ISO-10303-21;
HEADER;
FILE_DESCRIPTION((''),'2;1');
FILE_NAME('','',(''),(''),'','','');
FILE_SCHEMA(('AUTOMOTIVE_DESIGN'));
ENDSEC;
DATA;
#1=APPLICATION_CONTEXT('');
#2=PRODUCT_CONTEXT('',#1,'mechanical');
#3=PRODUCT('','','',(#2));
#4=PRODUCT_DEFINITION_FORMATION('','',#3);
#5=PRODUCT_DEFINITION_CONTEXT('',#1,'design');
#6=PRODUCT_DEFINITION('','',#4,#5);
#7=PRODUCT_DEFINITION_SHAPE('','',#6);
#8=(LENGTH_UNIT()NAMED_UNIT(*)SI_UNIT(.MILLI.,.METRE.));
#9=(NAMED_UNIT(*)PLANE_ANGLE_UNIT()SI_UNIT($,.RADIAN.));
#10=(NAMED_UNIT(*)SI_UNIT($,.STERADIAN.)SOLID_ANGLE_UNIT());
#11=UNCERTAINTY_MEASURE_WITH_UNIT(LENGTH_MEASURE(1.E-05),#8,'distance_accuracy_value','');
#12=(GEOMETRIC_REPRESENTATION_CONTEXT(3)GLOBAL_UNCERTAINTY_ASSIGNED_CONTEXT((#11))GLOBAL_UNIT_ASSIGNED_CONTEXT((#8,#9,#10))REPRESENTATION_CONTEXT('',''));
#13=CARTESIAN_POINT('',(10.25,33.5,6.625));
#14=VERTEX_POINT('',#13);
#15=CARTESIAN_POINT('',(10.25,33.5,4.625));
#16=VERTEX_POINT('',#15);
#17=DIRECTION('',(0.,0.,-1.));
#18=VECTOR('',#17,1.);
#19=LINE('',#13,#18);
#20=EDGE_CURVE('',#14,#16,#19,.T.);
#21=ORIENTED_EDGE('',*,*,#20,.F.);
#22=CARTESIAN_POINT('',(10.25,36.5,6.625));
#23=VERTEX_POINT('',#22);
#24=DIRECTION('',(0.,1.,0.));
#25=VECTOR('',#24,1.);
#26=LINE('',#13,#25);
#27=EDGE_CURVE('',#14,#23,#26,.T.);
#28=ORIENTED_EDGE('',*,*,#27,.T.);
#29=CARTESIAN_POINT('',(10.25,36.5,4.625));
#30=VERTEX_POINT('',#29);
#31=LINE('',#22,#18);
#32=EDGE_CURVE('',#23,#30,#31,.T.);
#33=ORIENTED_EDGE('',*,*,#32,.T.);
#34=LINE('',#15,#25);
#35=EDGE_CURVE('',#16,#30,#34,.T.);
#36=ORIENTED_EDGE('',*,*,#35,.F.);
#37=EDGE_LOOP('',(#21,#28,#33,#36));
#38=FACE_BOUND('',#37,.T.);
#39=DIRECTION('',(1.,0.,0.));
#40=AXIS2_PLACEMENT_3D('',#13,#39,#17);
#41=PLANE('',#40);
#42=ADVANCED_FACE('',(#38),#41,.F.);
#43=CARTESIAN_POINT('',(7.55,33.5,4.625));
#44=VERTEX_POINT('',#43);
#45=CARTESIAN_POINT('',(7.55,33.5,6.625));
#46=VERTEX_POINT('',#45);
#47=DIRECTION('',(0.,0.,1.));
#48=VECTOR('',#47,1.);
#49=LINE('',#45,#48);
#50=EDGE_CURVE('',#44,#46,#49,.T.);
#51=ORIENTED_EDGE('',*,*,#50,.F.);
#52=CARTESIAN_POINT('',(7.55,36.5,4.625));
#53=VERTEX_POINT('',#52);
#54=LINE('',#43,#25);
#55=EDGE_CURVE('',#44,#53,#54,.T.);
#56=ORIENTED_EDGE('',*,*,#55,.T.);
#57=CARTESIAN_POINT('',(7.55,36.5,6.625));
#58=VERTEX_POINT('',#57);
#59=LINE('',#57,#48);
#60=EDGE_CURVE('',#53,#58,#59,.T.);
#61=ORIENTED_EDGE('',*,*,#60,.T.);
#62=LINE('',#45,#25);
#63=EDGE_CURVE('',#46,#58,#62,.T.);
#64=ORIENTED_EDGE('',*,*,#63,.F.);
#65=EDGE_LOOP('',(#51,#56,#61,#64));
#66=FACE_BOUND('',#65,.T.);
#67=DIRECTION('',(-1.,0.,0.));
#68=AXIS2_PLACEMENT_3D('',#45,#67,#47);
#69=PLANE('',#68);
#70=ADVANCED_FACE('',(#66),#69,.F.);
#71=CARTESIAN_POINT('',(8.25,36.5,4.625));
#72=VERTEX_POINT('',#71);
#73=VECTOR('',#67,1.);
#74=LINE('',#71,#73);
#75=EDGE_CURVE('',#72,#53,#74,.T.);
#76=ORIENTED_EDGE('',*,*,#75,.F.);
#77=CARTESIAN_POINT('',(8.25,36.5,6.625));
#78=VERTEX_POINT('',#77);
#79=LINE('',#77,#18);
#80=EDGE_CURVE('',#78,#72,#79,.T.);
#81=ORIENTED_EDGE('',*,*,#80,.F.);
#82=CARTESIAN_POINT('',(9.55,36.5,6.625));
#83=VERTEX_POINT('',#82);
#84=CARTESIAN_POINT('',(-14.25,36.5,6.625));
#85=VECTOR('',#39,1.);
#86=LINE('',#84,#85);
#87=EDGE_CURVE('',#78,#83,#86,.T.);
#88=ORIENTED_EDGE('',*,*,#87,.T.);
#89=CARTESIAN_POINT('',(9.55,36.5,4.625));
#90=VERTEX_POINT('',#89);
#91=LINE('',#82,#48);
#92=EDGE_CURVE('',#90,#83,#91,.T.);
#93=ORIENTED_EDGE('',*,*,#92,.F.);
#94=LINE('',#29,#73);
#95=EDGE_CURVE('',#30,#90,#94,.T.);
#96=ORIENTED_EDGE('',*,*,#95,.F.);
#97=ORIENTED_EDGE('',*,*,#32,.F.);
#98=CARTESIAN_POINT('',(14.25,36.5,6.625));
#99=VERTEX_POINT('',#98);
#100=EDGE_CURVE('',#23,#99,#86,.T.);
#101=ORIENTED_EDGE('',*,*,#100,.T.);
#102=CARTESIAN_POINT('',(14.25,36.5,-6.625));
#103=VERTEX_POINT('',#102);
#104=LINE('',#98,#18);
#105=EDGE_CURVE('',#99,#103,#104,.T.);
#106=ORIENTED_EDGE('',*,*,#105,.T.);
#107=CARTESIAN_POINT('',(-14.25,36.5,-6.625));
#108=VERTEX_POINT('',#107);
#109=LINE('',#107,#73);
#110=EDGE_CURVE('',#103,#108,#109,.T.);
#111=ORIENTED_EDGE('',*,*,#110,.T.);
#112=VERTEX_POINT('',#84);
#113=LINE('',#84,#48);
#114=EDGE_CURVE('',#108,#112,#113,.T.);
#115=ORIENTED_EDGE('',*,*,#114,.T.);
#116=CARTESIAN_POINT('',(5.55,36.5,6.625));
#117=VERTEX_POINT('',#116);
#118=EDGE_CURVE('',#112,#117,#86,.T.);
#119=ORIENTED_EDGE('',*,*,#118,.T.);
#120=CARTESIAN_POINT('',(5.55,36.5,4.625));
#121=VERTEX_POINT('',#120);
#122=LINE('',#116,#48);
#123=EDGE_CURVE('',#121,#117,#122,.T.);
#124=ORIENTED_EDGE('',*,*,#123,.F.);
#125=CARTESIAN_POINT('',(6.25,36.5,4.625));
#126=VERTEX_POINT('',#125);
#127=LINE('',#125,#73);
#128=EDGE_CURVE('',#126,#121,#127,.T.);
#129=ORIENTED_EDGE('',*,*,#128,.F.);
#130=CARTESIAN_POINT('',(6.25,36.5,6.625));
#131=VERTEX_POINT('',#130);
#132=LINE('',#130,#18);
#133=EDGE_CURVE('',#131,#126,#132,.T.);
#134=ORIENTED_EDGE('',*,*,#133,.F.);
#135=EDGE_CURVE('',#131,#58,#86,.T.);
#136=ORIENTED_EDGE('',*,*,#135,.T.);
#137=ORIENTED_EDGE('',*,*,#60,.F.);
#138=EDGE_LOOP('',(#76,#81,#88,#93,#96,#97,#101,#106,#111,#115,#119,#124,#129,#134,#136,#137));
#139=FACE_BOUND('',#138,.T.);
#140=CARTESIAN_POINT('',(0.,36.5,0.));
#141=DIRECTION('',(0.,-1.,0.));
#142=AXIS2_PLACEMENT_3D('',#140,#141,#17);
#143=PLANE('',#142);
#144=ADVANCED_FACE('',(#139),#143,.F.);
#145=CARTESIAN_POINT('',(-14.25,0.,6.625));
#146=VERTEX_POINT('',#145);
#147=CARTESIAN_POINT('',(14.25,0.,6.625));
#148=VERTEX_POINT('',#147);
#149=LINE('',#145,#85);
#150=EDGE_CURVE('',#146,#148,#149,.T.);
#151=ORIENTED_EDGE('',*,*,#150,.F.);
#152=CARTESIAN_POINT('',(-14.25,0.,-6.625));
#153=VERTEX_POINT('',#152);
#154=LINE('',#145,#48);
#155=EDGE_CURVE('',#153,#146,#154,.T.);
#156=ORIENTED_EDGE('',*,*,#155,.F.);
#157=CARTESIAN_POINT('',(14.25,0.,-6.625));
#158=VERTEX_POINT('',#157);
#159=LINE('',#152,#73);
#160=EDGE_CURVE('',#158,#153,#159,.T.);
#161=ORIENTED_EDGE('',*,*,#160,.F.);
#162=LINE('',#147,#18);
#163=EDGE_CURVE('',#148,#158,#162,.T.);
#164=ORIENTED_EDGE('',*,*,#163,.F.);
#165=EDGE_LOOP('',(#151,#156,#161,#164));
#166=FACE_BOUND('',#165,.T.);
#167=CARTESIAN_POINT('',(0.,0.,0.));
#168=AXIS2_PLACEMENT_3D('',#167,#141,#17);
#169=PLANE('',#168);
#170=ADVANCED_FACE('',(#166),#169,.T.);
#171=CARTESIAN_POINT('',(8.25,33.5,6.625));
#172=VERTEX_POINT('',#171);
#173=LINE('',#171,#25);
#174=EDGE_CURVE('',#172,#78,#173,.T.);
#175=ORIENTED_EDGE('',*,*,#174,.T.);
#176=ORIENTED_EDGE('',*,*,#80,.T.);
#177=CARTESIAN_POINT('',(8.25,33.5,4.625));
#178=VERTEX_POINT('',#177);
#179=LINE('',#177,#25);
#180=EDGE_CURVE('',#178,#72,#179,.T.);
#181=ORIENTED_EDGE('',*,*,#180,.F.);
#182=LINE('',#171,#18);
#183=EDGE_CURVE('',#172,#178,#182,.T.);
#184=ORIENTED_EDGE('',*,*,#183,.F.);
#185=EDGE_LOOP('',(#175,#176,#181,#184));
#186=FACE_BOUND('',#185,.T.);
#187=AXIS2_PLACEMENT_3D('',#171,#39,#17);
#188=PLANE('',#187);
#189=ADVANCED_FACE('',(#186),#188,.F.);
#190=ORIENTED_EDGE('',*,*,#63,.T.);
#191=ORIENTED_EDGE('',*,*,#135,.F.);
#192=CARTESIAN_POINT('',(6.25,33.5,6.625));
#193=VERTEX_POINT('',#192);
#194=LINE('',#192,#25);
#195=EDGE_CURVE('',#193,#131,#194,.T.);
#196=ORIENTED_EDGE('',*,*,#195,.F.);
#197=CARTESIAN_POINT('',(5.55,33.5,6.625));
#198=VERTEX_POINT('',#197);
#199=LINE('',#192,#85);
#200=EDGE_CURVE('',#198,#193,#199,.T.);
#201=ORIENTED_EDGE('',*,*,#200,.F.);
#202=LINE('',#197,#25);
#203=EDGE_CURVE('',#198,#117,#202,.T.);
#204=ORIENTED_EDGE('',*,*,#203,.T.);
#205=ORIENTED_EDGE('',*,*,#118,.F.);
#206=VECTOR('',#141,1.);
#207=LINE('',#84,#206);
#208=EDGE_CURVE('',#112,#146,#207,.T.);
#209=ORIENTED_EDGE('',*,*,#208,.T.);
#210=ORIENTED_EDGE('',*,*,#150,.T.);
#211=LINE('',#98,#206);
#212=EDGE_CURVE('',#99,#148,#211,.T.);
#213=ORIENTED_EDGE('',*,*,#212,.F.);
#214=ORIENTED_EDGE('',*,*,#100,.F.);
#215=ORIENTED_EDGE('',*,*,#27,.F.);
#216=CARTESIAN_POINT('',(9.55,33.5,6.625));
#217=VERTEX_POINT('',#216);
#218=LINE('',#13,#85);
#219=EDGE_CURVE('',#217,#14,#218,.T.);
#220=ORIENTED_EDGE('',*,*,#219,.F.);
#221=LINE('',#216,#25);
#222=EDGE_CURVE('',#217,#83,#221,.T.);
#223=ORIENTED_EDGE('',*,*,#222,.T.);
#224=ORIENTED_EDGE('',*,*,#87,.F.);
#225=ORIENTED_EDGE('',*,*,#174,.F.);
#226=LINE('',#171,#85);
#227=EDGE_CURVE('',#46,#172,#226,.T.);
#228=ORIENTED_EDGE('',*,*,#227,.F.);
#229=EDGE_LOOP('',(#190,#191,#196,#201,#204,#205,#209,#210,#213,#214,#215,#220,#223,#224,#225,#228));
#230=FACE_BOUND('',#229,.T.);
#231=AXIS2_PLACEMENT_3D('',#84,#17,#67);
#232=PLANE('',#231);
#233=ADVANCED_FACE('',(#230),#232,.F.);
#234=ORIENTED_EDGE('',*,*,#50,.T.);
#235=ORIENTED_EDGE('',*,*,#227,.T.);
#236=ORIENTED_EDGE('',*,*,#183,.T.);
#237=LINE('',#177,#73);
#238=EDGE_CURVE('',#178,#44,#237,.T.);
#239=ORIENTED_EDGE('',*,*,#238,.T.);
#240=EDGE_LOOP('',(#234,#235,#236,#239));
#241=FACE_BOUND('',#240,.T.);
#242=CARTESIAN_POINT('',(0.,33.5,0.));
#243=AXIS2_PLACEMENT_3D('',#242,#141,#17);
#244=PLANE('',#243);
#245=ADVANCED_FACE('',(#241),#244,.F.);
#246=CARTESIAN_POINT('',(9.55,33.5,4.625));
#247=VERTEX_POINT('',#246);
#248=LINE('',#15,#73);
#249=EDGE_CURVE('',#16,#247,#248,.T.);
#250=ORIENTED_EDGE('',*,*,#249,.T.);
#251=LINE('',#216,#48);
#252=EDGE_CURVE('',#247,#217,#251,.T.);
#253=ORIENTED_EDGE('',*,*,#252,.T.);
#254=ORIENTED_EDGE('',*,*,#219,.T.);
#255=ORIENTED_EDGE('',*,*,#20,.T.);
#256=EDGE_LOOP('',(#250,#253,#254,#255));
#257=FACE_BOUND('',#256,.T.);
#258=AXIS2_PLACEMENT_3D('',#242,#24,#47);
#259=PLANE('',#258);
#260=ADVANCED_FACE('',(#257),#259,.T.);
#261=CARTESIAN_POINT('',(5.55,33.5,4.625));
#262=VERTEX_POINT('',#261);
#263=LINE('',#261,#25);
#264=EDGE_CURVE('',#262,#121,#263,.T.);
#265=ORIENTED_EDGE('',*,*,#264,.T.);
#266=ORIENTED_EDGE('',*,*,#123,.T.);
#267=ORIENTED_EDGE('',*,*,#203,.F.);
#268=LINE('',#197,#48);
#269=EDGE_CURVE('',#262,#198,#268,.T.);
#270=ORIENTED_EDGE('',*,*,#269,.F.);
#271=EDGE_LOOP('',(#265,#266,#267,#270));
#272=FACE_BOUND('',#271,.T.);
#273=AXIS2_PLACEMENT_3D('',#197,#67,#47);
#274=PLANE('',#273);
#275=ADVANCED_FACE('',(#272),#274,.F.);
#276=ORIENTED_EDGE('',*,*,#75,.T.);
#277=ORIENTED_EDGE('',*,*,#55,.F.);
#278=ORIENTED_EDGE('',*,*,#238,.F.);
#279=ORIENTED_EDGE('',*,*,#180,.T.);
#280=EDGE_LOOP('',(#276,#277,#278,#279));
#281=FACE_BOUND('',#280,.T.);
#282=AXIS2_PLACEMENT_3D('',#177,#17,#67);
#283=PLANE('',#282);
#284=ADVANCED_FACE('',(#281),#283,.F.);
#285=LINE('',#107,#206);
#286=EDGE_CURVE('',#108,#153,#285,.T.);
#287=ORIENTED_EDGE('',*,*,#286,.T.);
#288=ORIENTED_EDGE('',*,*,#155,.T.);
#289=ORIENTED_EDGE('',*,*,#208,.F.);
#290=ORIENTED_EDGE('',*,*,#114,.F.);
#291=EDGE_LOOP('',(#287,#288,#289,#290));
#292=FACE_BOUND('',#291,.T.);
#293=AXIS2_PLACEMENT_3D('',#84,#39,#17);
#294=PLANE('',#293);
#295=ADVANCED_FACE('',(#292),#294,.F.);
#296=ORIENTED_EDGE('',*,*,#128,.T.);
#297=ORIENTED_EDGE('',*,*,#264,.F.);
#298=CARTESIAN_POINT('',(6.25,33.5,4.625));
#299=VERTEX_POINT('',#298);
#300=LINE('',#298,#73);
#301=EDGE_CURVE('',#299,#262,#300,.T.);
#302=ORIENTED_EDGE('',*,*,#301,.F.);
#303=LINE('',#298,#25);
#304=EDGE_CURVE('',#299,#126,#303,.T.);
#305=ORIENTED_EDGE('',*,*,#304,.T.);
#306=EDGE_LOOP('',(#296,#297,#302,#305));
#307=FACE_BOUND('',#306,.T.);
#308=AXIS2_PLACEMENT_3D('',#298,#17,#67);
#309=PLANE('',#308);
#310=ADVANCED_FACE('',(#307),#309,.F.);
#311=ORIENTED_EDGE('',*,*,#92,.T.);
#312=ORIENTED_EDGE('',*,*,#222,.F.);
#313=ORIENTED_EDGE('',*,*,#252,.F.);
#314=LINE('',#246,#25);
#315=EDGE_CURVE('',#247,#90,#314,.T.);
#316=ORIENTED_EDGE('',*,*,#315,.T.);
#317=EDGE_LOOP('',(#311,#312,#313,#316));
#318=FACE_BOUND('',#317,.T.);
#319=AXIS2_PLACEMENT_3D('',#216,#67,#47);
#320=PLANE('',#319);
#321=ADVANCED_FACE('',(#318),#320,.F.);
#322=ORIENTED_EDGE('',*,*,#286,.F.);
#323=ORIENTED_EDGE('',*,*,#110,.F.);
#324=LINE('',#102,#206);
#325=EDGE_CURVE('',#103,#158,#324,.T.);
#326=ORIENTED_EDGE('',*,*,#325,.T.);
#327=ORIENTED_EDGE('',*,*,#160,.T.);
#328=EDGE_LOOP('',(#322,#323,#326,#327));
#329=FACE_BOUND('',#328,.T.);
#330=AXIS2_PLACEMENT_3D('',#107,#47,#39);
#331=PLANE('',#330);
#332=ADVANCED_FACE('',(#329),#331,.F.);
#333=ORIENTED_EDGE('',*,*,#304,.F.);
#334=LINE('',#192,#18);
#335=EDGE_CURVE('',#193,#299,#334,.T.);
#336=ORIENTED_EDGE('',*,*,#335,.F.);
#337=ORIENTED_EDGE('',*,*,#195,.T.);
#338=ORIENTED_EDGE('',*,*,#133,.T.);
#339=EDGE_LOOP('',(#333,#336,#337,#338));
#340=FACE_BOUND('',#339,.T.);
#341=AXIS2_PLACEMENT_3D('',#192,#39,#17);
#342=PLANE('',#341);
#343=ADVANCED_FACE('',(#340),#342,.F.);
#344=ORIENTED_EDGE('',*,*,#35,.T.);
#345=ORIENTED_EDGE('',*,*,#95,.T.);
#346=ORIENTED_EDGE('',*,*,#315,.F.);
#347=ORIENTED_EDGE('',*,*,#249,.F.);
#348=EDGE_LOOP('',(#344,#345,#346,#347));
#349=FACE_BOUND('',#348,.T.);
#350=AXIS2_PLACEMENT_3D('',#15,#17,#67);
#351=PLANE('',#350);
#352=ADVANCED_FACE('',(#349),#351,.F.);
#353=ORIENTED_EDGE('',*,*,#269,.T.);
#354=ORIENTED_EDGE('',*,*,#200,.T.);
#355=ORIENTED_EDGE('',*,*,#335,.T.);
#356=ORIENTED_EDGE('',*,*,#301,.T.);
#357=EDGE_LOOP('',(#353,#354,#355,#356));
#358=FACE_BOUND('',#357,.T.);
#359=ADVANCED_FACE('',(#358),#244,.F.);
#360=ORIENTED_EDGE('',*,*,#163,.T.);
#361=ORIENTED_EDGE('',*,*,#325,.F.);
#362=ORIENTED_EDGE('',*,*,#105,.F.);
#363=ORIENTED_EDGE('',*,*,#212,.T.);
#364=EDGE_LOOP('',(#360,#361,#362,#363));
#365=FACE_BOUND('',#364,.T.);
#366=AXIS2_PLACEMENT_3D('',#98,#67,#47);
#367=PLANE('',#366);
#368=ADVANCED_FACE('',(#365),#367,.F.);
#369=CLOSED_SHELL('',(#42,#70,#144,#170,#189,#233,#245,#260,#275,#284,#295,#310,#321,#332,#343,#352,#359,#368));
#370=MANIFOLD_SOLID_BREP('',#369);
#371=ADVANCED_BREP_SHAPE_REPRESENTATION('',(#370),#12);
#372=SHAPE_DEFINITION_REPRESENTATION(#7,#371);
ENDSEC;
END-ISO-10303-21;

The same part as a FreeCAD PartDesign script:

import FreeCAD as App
import Part
import Sketcher

V = App.Vector
Q = App.Units.Quantity

doc = App.newDocument("Part")
body = doc.addObject("PartDesign::Body", "Body")

# Sketch on XZ plane
sketch1 = body.newObject("Sketcher::SketchObject", "Sketch")
sketch1.AttachmentSupport = (doc.getObject("XZ_Plane"), [""])
sketch1.MapMode = "FlatFace"
sketch1.addGeometry([
    Part.LineSegment(V(-14, -7, 0), V(-14, 7, 0)),
    Part.LineSegment(V(-14, 7, 0), V(14, 7, 0)),
    Part.LineSegment(V(14, 7, 0), V(14, -7, 0)),
    Part.LineSegment(V(14, -7, 0), V(-14, -7, 0)),
], False)
sketch1.addConstraint([
    Sketcher.Constraint("Coincident", 0, 2, 1, 1),
    Sketcher.Constraint("Coincident", 1, 2, 2, 1),
    Sketcher.Constraint("Coincident", 2, 2, 3, 1),
    Sketcher.Constraint("Coincident", 3, 2, 0, 1),
    Sketcher.Constraint("Vertical", 0),
    Sketcher.Constraint("Horizontal", 1),
    Sketcher.Constraint("Vertical", 2),
    Sketcher.Constraint("Horizontal", 3),
    Sketcher.Constraint("Symmetric", 0, 2, 2, 2, -1, 1),
    Sketcher.Constraint("DistanceX", 1, 1, 1, 2, Q("28.5 mm")),
    Sketcher.Constraint("DistanceY", 0, 1, 0, 2, Q("13.25 mm")),
])
pad1 = body.newObject("PartDesign::Pad", "Pad")
pad1.Profile = sketch1
pad1.Length = 36.5
pad1.Reversed = True

# Sketch on XZ plane
sketch2 = body.newObject("Sketcher::SketchObject", "Sketch001")
sketch2.AttachmentSupport = (doc.getObject("XZ_Plane"), [""])
sketch2.MapMode = "FlatFace"
sketch2.AttachmentOffset = App.Placement(V(0, 0, -36.5), App.Rotation())
sketch2.addGeometry([
    Part.LineSegment(V(9.6, 4.6, 0), V(9.6, 6.6, 0)),  # 0
    Part.LineSegment(V(9.6, 6.6, 0), V(10.2, 6.6, 0)),  # 1
    Part.LineSegment(V(10.2, 6.6, 0), V(10.2, 4.6, 0)),  # 2
    Part.LineSegment(V(10.2, 4.6, 0), V(9.6, 4.6, 0)),  # 3
    Part.LineSegment(V(7.5, 4.6, 0), V(7.5, 6.6, 0)),  # 4
    Part.LineSegment(V(7.5, 6.6, 0), V(8.2, 6.6, 0)),  # 5
    Part.LineSegment(V(8.2, 6.6, 0), V(8.2, 4.6, 0)),  # 6
    Part.LineSegment(V(8.2, 4.6, 0), V(7.5, 4.6, 0)),  # 7
    Part.LineSegment(V(5.5, 4.6, 0), V(5.5, 6.6, 0)),  # 8
    Part.LineSegment(V(5.5, 6.6, 0), V(6.2, 6.6, 0)),  # 9
    Part.LineSegment(V(6.2, 6.6, 0), V(6.2, 4.6, 0)),  # 10
    Part.LineSegment(V(6.2, 4.6, 0), V(5.5, 4.6, 0)),  # 11
], False)
sketch2.addConstraint([
    Sketcher.Constraint("Coincident", 0, 2, 1, 1),
    Sketcher.Constraint("Coincident", 1, 2, 2, 1),
    Sketcher.Constraint("Coincident", 2, 2, 3, 1),
    Sketcher.Constraint("Coincident", 3, 2, 0, 1),
    Sketcher.Constraint("Coincident", 4, 2, 5, 1),
    Sketcher.Constraint("Coincident", 5, 2, 6, 1),
    Sketcher.Constraint("Coincident", 6, 2, 7, 1),
    Sketcher.Constraint("Coincident", 7, 2, 4, 1),
    Sketcher.Constraint("Coincident", 8, 2, 9, 1),
    Sketcher.Constraint("Coincident", 9, 2, 10, 1),
    Sketcher.Constraint("Coincident", 10, 2, 11, 1),
    Sketcher.Constraint("Coincident", 11, 2, 8, 1),
    Sketcher.Constraint("Vertical", 0),
    Sketcher.Constraint("Horizontal", 1),
    Sketcher.Constraint("Vertical", 2),
    Sketcher.Constraint("Horizontal", 3),
    Sketcher.Constraint("Vertical", 4),
    Sketcher.Constraint("Horizontal", 5),
    Sketcher.Constraint("Vertical", 6),
    Sketcher.Constraint("Horizontal", 7),
    Sketcher.Constraint("Vertical", 8),
    Sketcher.Constraint("Horizontal", 9),
    Sketcher.Constraint("Vertical", 10),
    Sketcher.Constraint("Horizontal", 11),
    Sketcher.Constraint("Horizontal", 1, 2, 4, 2),
    Sketcher.Constraint("Horizontal", 3, 2, 6, 2),
    Sketcher.Constraint("Horizontal", 5, 2, 8, 2),
    Sketcher.Constraint("Horizontal", 7, 2, 10, 2),
    Sketcher.Constraint("Equal", 3, 5),
    Sketcher.Constraint("Equal", 7, 9),
    Sketcher.Constraint("DistanceY", 0, 1, 0, 2, Q("2 mm")),
    Sketcher.Constraint("DistanceX", 1, 1, 1, 2, Q("0.7 mm")),
    Sketcher.Constraint("DistanceX", 4, 2, 0, 2, Q("2 mm")),
    Sketcher.Constraint("DistanceX", 8, 2, 4, 2, Q("2 mm")),
    Sketcher.Constraint("DistanceX", -1, 1, 0, 2, Q("9.55 mm")),
    Sketcher.Constraint("DistanceY", -1, 1, 0, 2, Q("6.625 mm")),
])
pocket1 = body.newObject("PartDesign::Pocket", "Pocket")
pocket1.Profile = sketch2
pocket1.Length = 3
pocket1.Reversed = True

doc.recompute()
